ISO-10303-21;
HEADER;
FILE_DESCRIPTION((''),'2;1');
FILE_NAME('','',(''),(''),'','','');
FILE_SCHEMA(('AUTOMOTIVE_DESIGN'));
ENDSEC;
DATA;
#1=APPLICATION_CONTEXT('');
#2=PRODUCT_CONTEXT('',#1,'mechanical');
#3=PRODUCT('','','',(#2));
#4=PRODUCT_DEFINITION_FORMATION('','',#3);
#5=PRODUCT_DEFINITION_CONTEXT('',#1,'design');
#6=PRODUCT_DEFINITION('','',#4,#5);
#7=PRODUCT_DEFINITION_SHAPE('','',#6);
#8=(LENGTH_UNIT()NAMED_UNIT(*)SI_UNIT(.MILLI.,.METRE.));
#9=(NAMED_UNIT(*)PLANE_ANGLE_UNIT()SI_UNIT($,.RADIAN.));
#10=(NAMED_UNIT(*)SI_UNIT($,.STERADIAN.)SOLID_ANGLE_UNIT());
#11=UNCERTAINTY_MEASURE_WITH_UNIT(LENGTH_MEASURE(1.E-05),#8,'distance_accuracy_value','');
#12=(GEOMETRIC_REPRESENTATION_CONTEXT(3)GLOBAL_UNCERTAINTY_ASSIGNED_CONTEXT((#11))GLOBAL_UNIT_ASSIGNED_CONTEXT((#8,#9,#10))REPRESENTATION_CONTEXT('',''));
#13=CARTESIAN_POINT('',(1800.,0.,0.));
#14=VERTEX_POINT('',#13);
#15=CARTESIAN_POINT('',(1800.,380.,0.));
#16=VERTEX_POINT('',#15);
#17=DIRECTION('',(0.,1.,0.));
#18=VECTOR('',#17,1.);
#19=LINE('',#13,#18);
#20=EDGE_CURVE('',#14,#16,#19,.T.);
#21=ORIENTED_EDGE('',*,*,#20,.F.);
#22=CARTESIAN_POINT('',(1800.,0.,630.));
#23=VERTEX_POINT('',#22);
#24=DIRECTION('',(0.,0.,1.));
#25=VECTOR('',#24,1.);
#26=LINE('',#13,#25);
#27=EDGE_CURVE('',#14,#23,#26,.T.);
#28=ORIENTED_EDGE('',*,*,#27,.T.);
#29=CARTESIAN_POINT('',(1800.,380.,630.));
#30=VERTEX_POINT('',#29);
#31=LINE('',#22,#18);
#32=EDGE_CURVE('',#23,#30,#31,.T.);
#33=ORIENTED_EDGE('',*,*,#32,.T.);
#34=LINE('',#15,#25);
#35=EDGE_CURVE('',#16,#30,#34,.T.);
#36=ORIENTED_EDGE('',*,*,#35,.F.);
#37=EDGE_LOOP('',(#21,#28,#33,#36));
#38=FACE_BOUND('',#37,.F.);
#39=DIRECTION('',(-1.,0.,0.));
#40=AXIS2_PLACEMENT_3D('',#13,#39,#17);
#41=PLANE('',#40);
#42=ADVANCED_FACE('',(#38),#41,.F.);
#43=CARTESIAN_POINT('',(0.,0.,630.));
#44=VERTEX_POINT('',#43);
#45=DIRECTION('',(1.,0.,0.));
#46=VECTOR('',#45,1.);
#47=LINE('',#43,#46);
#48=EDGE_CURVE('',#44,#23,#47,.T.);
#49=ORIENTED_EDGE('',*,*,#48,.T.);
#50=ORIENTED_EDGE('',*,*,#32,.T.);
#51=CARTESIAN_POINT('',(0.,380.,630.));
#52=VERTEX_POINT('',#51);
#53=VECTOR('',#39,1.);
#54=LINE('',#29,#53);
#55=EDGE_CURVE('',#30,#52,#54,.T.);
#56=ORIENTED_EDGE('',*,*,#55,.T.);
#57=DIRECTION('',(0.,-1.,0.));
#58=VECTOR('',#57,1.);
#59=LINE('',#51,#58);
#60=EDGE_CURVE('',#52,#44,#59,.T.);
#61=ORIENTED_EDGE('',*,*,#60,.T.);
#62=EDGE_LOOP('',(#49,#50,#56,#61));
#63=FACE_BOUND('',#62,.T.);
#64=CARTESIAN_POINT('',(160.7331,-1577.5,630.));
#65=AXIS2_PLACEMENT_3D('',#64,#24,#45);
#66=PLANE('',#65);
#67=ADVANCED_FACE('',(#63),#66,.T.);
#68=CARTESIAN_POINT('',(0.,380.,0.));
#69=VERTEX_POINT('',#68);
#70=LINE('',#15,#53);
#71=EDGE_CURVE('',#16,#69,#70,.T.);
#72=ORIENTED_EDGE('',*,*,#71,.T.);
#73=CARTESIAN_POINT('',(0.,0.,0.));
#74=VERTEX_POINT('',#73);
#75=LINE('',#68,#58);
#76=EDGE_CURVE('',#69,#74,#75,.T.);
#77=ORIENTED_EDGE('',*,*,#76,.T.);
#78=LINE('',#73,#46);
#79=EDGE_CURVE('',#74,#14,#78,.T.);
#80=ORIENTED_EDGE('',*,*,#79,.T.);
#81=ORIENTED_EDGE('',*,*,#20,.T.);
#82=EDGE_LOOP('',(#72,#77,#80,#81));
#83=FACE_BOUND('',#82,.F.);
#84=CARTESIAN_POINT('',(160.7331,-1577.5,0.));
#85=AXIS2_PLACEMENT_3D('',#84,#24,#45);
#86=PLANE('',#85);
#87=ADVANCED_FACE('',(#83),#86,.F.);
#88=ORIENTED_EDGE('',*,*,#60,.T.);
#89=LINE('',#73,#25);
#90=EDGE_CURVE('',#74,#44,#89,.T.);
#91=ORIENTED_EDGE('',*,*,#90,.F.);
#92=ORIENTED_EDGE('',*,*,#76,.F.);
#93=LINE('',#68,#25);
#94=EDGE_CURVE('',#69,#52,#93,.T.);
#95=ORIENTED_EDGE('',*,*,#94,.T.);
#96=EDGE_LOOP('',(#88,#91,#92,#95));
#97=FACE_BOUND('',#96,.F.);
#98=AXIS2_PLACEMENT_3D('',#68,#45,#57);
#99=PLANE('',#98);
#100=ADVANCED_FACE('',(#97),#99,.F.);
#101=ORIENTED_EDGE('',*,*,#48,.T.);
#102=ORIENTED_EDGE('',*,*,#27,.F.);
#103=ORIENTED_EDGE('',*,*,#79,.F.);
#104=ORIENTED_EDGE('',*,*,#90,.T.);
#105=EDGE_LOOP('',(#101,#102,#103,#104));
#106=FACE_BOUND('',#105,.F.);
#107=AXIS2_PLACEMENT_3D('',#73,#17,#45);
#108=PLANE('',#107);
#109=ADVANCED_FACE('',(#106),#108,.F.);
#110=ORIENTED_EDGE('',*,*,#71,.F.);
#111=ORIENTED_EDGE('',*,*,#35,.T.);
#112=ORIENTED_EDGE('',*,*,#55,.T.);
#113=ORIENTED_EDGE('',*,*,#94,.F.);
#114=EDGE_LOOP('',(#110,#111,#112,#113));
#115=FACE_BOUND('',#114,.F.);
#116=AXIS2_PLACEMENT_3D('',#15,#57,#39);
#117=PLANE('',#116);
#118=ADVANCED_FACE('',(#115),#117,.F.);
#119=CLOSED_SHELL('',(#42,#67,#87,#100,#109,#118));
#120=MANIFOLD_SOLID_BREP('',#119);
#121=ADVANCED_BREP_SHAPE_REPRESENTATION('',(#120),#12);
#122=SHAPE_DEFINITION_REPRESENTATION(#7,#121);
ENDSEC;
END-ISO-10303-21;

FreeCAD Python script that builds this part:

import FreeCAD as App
import Part
import Sketcher
Q = App.Units.Quantity


def add_polygon(sketch, points):
    """Adds a closed chain of lines whose ends are joined by coincident constraints."""
    first, n = sketch.GeometryCount, len(points)
    for a, b in zip(points, points[1:] + points[:1]):
        sketch.addGeometry(Part.LineSegment(App.Vector(*a, 0), App.Vector(*b, 0)), False)
    for i in range(n):
        sketch.addConstraint(Sketcher.Constraint("Coincident", first + i, 2, first + (i + 1) % n, 1))

doc = App.newDocument("Part")
body = doc.addObject("PartDesign::Body", "Body")

# Sketch on XY plane
sketch1 = body.newObject("Sketcher::SketchObject", "Sketch")
sketch1.AttachmentSupport = (doc.getObject("XY_Plane"), [""])
sketch1.MapMode = "FlatFace"
add_polygon(sketch1, [(0, 380), (0, 0), (1800, 0), (1800, 380)])  # lines 0-3
sketch1.addConstraint(Sketcher.Constraint("Vertical", 0))
sketch1.addConstraint(Sketcher.Constraint("Horizontal", 1))
sketch1.addConstraint(Sketcher.Constraint("Vertical", 2))
sketch1.addConstraint(Sketcher.Constraint("Horizontal", 3))
sketch1.addConstraint(Sketcher.Constraint("Coincident", 0, 2, -1, 1))
sketch1.addConstraint(Sketcher.Constraint("DistanceX", 1, 1, 1, 2, Q("1800 mm")))
sketch1.addConstraint(Sketcher.Constraint("DistanceY", 0, 2, 0, 1, Q("380 mm")))
pad1 = body.newObject("PartDesign::Pad", "Pad")
pad1.Profile = sketch1
pad1.Length = 630

doc.recompute()
